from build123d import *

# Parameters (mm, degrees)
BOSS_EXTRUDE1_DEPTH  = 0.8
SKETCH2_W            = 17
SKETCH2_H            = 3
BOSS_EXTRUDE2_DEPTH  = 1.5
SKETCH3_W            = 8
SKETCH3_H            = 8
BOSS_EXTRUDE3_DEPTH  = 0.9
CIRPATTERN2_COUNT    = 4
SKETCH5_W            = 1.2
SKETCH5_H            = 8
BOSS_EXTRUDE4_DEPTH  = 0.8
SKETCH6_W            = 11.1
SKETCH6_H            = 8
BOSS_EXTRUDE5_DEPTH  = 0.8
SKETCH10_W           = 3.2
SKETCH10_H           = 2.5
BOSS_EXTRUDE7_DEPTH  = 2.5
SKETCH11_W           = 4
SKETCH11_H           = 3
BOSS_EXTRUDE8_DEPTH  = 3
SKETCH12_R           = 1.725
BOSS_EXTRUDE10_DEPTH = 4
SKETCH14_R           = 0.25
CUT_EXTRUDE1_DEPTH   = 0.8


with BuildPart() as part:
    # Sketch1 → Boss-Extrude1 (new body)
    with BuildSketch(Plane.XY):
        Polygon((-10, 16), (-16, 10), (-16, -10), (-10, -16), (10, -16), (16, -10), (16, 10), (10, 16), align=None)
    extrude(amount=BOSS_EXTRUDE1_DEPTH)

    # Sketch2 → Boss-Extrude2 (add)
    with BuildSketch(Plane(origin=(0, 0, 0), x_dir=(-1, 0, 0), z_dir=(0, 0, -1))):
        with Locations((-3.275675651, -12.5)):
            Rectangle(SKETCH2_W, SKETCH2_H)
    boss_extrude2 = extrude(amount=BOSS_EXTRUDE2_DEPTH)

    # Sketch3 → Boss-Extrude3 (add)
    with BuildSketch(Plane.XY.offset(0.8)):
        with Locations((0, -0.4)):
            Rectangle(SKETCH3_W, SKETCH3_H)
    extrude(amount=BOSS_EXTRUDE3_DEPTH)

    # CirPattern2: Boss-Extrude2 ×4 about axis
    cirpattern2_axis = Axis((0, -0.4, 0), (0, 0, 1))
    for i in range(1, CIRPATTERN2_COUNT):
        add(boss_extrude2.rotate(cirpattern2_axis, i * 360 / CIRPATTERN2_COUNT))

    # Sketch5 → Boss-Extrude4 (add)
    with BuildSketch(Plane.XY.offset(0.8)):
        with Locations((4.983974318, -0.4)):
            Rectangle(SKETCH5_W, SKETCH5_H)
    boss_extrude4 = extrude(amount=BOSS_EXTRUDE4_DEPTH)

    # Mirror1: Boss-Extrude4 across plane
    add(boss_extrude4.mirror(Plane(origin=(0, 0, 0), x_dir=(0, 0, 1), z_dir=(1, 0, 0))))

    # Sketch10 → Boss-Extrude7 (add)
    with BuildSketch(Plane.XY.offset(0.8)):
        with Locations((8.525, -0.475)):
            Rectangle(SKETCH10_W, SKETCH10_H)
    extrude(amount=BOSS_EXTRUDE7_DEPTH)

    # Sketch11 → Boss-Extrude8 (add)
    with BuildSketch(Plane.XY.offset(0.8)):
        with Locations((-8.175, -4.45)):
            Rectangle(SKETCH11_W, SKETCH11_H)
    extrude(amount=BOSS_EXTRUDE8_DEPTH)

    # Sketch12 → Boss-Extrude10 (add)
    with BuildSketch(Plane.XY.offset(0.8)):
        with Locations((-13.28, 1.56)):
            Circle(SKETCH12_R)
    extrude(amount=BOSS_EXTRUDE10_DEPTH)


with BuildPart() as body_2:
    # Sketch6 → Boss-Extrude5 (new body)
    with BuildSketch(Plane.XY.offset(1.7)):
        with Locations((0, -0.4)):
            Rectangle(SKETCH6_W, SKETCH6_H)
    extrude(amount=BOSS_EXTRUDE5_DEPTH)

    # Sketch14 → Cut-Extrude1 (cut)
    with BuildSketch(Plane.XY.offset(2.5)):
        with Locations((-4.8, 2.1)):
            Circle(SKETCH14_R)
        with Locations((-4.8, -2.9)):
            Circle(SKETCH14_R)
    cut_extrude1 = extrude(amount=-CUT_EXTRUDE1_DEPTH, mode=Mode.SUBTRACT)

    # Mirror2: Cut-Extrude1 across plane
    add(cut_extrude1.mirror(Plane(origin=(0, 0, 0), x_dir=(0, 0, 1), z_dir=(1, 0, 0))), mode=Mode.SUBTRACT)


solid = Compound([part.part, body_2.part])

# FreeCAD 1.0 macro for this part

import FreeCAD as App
import Part
import Sketcher

V = App.Vector


def add_polygon(sketch, points):
    """Adds a closed chain of lines whose ends are joined by coincident constraints."""
    first, n = sketch.GeometryCount, len(points)
    for a, b in zip(points, points[1:] + points[:1]):
        sketch.addGeometry(Part.LineSegment(App.Vector(*a, 0), App.Vector(*b, 0)), False)
    for i in range(n):
        sketch.addConstraint(Sketcher.Constraint("Coincident", first + i, 2, first + (i + 1) % n, 1))

doc = App.newDocument("Part")
body = doc.addObject("PartDesign::Body", "Body")

# Sketch on XY plane
sketch1 = body.newObject("Sketcher::SketchObject", "Sketch")
sketch1.AttachmentSupport = (doc.getObject("XY_Plane"), [""])
sketch1.MapMode = "FlatFace"
add_polygon(sketch1, [(-10, 16), (-16, 10), (-16, -10), (-10, -16), (10, -16), (16, -10), (16, 10), (10, 16)])  # lines 0-7
sketch1.addConstraint(Sketcher.Constraint("Vertical", 1))
sketch1.addConstraint(Sketcher.Constraint("Horizontal", 3))
sketch1.addConstraint(Sketcher.Constraint("Vertical", 5))
sketch1.addConstraint(Sketcher.Constraint("Horizontal", 7))
sketch1.addConstraint(Sketcher.Constraint("Symmetric", 0, 2, 4, 2, -1, 1))
sketch1.addConstraint(Sketcher.Constraint("Symmetric", 2, 2, 6, 2, -1, 1))
sketch1.addConstraint(Sketcher.Constraint("Perpendicular", 0, 2))
sketch1.addConstraint(Sketcher.Constraint("Perpendicular", 2, 4))
sketch1.addConstraint(Sketcher.Constraint("Perpendicular", 4, 6))
sketch1.addConstraint(Sketcher.Constraint("Horizontal", 1, 2, 4, 2))
sketch1.addConstraint(Sketcher.Constraint("Vertical", 3, 2, 6, 2))
sketch1.addConstraint(Sketcher.Constraint("Equal", 7, 1))
sketch1.addConstraint(Sketcher.Constraint("DistanceX", 3, 1, 3, 2, 20.0))
sketch1.addConstraint(Sketcher.Constraint("DistanceX", 0, 2, -1, 1, 16.0))
pad1 = body.newObject("PartDesign::Pad", "Pad")
pad1.Profile = sketch1
pad1.Length = 0.8

# Sketch on XY plane
sketch2 = body.newObject("Sketcher::SketchObject", "Sketch001")
sketch2.AttachmentSupport = (doc.getObject("XY_Plane"), [""])
sketch2.MapMode = "FlatFace"
add_polygon(sketch2, [(11.775676, -11), (11.775676, -14), (-5.224324, -14), (-5.224324, -11)])  # lines 0-3
sketch2.addConstraint(Sketcher.Constraint("Vertical", 0))
sketch2.addConstraint(Sketcher.Constraint("Horizontal", 1))
sketch2.addConstraint(Sketcher.Constraint("Vertical", 2))
sketch2.addConstraint(Sketcher.Constraint("Horizontal", 3))
sketch2.addConstraint(Sketcher.Constraint("DistanceX", 1, 2, 1, 1, 17.0))
sketch2.addConstraint(Sketcher.Constraint("DistanceY", 0, 2, 0, 1, 3.0))
sketch2.addConstraint(Sketcher.Constraint("DistanceY", 0, 2, -1, 1, 14.0))
sketch2.addConstraint(Sketcher.Constraint("DistanceX", -1, 1, 0, 2, 11.775676))
pad2 = body.newObject("PartDesign::Pad", "Pad001")
pad2.Profile = sketch2
pad2.Length = 1.5
pad2.Reversed = True

# Sketch on XY plane
sketch3 = body.newObject("Sketcher::SketchObject", "Sketch002")
sketch3.AttachmentSupport = (doc.getObject("XY_Plane"), [""])
sketch3.MapMode = "FlatFace"
sketch3.AttachmentOffset = App.Placement(V(0, 0, 0.8), App.Rotation())
add_polygon(sketch3, [(-4, 3.6), (-4, -4.4), (4, -4.4), (4, 3.6)])  # lines 0-3
sketch3.addConstraint(Sketcher.Constraint("Vertical", 0))
sketch3.addConstraint(Sketcher.Constraint("Horizontal", 1))
sketch3.addConstraint(Sketcher.Constraint("Vertical", 2))
sketch3.addConstraint(Sketcher.Constraint("Horizontal", 3))
sketch3.addConstraint(Sketcher.Constraint("Equal", 3, 0))
sketch3.addConstraint(Sketcher.Constraint("DistanceX", 1, 1, 1, 2, 8.0))
sketch3.addConstraint(Sketcher.Constraint("DistanceX", 0, 2, -1, 1, 4.0))
sketch3.addConstraint(Sketcher.Constraint("DistanceY", 0, 2, -1, 1, 4.4))
pad3 = body.newObject("PartDesign::Pad", "Pad002")
pad3.Profile = sketch3
pad3.Length = 0.9
doc.recompute()

datumline = body.newObject("PartDesign::Line", "DatumLine")
datumline.Placement = App.Placement(V(0, -0.4, 0), App.Rotation(V(0, 0, 1), V(0, 0, 1)))
polarpattern = body.newObject("PartDesign::PolarPattern", "PolarPattern")
polarpattern.Originals = [pad2]
polarpattern.Axis = (datumline, [""])
polarpattern.Angle = 360
polarpattern.Occurrences = 4
body.Tip = polarpattern

# Sketch on XY plane
sketch4 = body.newObject("Sketcher::SketchObject", "Sketch003")
sketch4.AttachmentSupport = (doc.getObject("XY_Plane"), [""])
sketch4.MapMode = "FlatFace"
sketch4.AttachmentOffset = App.Placement(V(0, 0, 0.8), App.Rotation())
add_polygon(sketch4, [(4.383974, 3.6), (4.383974, -4.4), (5.583974, -4.4), (5.583974, 3.6)])  # lines 0-3
sketch4.addConstraint(Sketcher.Constraint("Vertical", 0))
sketch4.addConstraint(Sketcher.Constraint("Horizontal", 1))
sketch4.addConstraint(Sketcher.Constraint("Vertical", 2))
sketch4.addConstraint(Sketcher.Constraint("Horizontal", 3))
sketch4.addConstraint(Sketcher.Constraint("DistanceY", 0, 2, 0, 1, 8.0))
sketch4.addConstraint(Sketcher.Constraint("DistanceX", 1, 1, 1, 2, 1.2))
sketch4.addConstraint(Sketcher.Constraint("DistanceY", 0, 2, -1, 1, 4.4))
sketch4.addConstraint(Sketcher.Constraint("DistanceX", -1, 1, 0, 2, 4.383974))
pad4 = body.newObject("PartDesign::Pad", "Pad003")
pad4.Profile = sketch4
pad4.Length = 0.8
doc.recompute()

mirrored = body.newObject("PartDesign::Mirrored", "Mirrored")
mirrored.Originals = [pad4]
mirrored.MirrorPlane = (doc.getObject("YZ_Plane"), [""])
body.Tip = mirrored

# Sketch on XY plane
sketch5 = body.newObject("Sketcher::SketchObject", "Sketch004")
sketch5.AttachmentSupport = (doc.getObject("XY_Plane"), [""])
sketch5.MapMode = "FlatFace"
sketch5.AttachmentOffset = App.Placement(V(0, 0, 0.8), App.Rotation())
add_polygon(sketch5, [(6.925, 0.775), (6.925, -1.725), (10.125, -1.725), (10.125, 0.775)])  # lines 0-3
sketch5.addConstraint(Sketcher.Constraint("Vertical", 0))
sketch5.addConstraint(Sketcher.Constraint("Horizontal", 1))
sketch5.addConstraint(Sketcher.Constraint("Vertical", 2))
sketch5.addConstraint(Sketcher.Constraint("Horizontal", 3))
sketch5.addConstraint(Sketcher.Constraint("DistanceX", 1, 1, 1, 2, 3.2))
sketch5.addConstraint(Sketcher.Constraint("DistanceY", 0, 2, 0, 1, 2.5))
sketch5.addConstraint(Sketcher.Constraint("DistanceX", -1, 1, 0, 2, 6.925))
sketch5.addConstraint(Sketcher.Constraint("DistanceY", 0, 2, -1, 1, 1.725))
pad5 = body.newObject("PartDesign::Pad", "Pad004")
pad5.Profile = sketch5
pad5.Length = 2.5

# Sketch on XY plane
sketch6 = body.newObject("Sketcher::SketchObject", "Sketch005")
sketch6.AttachmentSupport = (doc.getObject("XY_Plane"), [""])
sketch6.MapMode = "FlatFace"
sketch6.AttachmentOffset = App.Placement(V(0, 0, 0.8), App.Rotation())
add_polygon(sketch6, [(-10.175, -2.95), (-10.175, -5.95), (-6.175, -5.95), (-6.175, -2.95)])  # lines 0-3
sketch6.addConstraint(Sketcher.Constraint("Vertical", 0))
sketch6.addConstraint(Sketcher.Constraint("Horizontal", 1))
sketch6.addConstraint(Sketcher.Constraint("Vertical", 2))
sketch6.addConstraint(Sketcher.Constraint("Horizontal", 3))
sketch6.addConstraint(Sketcher.Constraint("DistanceX", 1, 1, 1, 2, 4.0))
sketch6.addConstraint(Sketcher.Constraint("DistanceY", 0, 2, 0, 1, 3.0))
sketch6.addConstraint(Sketcher.Constraint("DistanceY", 0, 2, -1, 1, 5.95))
sketch6.addConstraint(Sketcher.Constraint("DistanceX", 0, 2, -1, 1, 10.175))
pad6 = body.newObject("PartDesign::Pad", "Pad005")
pad6.Profile = sketch6
pad6.Length = 3

# Sketch on XY plane
sketch7 = body.newObject("Sketcher::SketchObject", "Sketch006")
sketch7.AttachmentSupport = (doc.getObject("XY_Plane"), [""])
sketch7.MapMode = "FlatFace"
sketch7.AttachmentOffset = App.Placement(V(0, 0, 0.8), App.Rotation())
sketch7.addGeometry(Part.Circle(V(-13.28, 1.56, 0), V(0, 0, 1), 1.725), False)
sketch7.addConstraint(Sketcher.Constraint("Diameter", 0, 3.45))
sketch7.addConstraint(Sketcher.Constraint("DistanceX", 0, 3, -1, 1, 13.28))
sketch7.addConstraint(Sketcher.Constraint("DistanceY", -1, 1, 0, 3, 1.56))
pad7 = body.newObject("PartDesign::Pad", "Pad006")
pad7.Profile = sketch7
pad7.Length = 4
body2 = doc.addObject("PartDesign::Body", "Body001")

# Sketch on XY plane
sketch8 = body2.newObject("Sketcher::SketchObject", "Sketch007")
sketch8.AttachmentSupport = (doc.getObject("XY_Plane001"), [""])
sketch8.MapMode = "FlatFace"
sketch8.AttachmentOffset = App.Placement(V(0, 0, 1.7), App.Rotation())
add_polygon(sketch8, [(-5.55, 3.6), (-5.55, -4.4), (5.55, -4.4), (5.55, 3.6)])  # lines 0-3
sketch8.addConstraint(Sketcher.Constraint("Vertical", 0))
sketch8.addConstraint(Sketcher.Constraint("Horizontal", 1))
sketch8.addConstraint(Sketcher.Constraint("Vertical", 2))
sketch8.addConstraint(Sketcher.Constraint("Horizontal", 3))
sketch8.addConstraint(Sketcher.Constraint("DistanceY", 0, 2, 0, 1, 8.0))
sketch8.addConstraint(Sketcher.Constraint("DistanceX", 1, 1, 1, 2, 11.1))
sketch8.addConstraint(Sketcher.Constraint("DistanceY", 0, 2, -1, 1, 4.4))
sketch8.addConstraint(Sketcher.Constraint("DistanceX", 0, 2, -1, 1, 5.55))
pad8 = body2.newObject("PartDesign::Pad", "Pad007")
pad8.Profile = sketch8
pad8.Length = 0.8

# Sketch on XY plane
sketch9 = body2.newObject("Sketcher::SketchObject", "Sketch008")
sketch9.AttachmentSupport = (doc.getObject("XY_Plane001"), [""])
sketch9.MapMode = "FlatFace"
sketch9.AttachmentOffset = App.Placement(V(0, 0, 2.5), App.Rotation())
sketch9.addGeometry(Part.Circle(V(-4.8, 2.1, 0), V(0, 0, 1), 0.25), False)
sketch9.addGeometry(Part.Circle(V(-4.8, -2.9, 0), V(0, 0, 1), 0.25), False)
sketch9.addConstraint(Sketcher.Constraint("Equal", 0, 1))
sketch9.addConstraint(Sketcher.Constraint("Vertical", 0, 3, 1, 3))
sketch9.addConstraint(Sketcher.Constraint("Diameter", 0, 0.5))
sketch9.addConstraint(Sketcher.Constraint("DistanceY", 1, 3, 0, 3, 5.0))
sketch9.addConstraint(Sketcher.Constraint("DistanceX", 0, 3, -1, 1, 4.8))
sketch9.addConstraint(Sketcher.Constraint("DistanceY", -1, 1, 0, 3, 2.1))
pocket1 = body2.newObject("PartDesign::Pocket", "Pocket")
pocket1.Profile = sketch9
pocket1.Length = 0.8
doc.recompute()

mirrored2 = body2.newObject("PartDesign::Mirrored", "Mirrored001")
mirrored2.Originals = [pocket1]
mirrored2.MirrorPlane = (doc.getObject("YZ_Plane001"), [""])
body2.Tip = mirrored2

doc.recompute()
